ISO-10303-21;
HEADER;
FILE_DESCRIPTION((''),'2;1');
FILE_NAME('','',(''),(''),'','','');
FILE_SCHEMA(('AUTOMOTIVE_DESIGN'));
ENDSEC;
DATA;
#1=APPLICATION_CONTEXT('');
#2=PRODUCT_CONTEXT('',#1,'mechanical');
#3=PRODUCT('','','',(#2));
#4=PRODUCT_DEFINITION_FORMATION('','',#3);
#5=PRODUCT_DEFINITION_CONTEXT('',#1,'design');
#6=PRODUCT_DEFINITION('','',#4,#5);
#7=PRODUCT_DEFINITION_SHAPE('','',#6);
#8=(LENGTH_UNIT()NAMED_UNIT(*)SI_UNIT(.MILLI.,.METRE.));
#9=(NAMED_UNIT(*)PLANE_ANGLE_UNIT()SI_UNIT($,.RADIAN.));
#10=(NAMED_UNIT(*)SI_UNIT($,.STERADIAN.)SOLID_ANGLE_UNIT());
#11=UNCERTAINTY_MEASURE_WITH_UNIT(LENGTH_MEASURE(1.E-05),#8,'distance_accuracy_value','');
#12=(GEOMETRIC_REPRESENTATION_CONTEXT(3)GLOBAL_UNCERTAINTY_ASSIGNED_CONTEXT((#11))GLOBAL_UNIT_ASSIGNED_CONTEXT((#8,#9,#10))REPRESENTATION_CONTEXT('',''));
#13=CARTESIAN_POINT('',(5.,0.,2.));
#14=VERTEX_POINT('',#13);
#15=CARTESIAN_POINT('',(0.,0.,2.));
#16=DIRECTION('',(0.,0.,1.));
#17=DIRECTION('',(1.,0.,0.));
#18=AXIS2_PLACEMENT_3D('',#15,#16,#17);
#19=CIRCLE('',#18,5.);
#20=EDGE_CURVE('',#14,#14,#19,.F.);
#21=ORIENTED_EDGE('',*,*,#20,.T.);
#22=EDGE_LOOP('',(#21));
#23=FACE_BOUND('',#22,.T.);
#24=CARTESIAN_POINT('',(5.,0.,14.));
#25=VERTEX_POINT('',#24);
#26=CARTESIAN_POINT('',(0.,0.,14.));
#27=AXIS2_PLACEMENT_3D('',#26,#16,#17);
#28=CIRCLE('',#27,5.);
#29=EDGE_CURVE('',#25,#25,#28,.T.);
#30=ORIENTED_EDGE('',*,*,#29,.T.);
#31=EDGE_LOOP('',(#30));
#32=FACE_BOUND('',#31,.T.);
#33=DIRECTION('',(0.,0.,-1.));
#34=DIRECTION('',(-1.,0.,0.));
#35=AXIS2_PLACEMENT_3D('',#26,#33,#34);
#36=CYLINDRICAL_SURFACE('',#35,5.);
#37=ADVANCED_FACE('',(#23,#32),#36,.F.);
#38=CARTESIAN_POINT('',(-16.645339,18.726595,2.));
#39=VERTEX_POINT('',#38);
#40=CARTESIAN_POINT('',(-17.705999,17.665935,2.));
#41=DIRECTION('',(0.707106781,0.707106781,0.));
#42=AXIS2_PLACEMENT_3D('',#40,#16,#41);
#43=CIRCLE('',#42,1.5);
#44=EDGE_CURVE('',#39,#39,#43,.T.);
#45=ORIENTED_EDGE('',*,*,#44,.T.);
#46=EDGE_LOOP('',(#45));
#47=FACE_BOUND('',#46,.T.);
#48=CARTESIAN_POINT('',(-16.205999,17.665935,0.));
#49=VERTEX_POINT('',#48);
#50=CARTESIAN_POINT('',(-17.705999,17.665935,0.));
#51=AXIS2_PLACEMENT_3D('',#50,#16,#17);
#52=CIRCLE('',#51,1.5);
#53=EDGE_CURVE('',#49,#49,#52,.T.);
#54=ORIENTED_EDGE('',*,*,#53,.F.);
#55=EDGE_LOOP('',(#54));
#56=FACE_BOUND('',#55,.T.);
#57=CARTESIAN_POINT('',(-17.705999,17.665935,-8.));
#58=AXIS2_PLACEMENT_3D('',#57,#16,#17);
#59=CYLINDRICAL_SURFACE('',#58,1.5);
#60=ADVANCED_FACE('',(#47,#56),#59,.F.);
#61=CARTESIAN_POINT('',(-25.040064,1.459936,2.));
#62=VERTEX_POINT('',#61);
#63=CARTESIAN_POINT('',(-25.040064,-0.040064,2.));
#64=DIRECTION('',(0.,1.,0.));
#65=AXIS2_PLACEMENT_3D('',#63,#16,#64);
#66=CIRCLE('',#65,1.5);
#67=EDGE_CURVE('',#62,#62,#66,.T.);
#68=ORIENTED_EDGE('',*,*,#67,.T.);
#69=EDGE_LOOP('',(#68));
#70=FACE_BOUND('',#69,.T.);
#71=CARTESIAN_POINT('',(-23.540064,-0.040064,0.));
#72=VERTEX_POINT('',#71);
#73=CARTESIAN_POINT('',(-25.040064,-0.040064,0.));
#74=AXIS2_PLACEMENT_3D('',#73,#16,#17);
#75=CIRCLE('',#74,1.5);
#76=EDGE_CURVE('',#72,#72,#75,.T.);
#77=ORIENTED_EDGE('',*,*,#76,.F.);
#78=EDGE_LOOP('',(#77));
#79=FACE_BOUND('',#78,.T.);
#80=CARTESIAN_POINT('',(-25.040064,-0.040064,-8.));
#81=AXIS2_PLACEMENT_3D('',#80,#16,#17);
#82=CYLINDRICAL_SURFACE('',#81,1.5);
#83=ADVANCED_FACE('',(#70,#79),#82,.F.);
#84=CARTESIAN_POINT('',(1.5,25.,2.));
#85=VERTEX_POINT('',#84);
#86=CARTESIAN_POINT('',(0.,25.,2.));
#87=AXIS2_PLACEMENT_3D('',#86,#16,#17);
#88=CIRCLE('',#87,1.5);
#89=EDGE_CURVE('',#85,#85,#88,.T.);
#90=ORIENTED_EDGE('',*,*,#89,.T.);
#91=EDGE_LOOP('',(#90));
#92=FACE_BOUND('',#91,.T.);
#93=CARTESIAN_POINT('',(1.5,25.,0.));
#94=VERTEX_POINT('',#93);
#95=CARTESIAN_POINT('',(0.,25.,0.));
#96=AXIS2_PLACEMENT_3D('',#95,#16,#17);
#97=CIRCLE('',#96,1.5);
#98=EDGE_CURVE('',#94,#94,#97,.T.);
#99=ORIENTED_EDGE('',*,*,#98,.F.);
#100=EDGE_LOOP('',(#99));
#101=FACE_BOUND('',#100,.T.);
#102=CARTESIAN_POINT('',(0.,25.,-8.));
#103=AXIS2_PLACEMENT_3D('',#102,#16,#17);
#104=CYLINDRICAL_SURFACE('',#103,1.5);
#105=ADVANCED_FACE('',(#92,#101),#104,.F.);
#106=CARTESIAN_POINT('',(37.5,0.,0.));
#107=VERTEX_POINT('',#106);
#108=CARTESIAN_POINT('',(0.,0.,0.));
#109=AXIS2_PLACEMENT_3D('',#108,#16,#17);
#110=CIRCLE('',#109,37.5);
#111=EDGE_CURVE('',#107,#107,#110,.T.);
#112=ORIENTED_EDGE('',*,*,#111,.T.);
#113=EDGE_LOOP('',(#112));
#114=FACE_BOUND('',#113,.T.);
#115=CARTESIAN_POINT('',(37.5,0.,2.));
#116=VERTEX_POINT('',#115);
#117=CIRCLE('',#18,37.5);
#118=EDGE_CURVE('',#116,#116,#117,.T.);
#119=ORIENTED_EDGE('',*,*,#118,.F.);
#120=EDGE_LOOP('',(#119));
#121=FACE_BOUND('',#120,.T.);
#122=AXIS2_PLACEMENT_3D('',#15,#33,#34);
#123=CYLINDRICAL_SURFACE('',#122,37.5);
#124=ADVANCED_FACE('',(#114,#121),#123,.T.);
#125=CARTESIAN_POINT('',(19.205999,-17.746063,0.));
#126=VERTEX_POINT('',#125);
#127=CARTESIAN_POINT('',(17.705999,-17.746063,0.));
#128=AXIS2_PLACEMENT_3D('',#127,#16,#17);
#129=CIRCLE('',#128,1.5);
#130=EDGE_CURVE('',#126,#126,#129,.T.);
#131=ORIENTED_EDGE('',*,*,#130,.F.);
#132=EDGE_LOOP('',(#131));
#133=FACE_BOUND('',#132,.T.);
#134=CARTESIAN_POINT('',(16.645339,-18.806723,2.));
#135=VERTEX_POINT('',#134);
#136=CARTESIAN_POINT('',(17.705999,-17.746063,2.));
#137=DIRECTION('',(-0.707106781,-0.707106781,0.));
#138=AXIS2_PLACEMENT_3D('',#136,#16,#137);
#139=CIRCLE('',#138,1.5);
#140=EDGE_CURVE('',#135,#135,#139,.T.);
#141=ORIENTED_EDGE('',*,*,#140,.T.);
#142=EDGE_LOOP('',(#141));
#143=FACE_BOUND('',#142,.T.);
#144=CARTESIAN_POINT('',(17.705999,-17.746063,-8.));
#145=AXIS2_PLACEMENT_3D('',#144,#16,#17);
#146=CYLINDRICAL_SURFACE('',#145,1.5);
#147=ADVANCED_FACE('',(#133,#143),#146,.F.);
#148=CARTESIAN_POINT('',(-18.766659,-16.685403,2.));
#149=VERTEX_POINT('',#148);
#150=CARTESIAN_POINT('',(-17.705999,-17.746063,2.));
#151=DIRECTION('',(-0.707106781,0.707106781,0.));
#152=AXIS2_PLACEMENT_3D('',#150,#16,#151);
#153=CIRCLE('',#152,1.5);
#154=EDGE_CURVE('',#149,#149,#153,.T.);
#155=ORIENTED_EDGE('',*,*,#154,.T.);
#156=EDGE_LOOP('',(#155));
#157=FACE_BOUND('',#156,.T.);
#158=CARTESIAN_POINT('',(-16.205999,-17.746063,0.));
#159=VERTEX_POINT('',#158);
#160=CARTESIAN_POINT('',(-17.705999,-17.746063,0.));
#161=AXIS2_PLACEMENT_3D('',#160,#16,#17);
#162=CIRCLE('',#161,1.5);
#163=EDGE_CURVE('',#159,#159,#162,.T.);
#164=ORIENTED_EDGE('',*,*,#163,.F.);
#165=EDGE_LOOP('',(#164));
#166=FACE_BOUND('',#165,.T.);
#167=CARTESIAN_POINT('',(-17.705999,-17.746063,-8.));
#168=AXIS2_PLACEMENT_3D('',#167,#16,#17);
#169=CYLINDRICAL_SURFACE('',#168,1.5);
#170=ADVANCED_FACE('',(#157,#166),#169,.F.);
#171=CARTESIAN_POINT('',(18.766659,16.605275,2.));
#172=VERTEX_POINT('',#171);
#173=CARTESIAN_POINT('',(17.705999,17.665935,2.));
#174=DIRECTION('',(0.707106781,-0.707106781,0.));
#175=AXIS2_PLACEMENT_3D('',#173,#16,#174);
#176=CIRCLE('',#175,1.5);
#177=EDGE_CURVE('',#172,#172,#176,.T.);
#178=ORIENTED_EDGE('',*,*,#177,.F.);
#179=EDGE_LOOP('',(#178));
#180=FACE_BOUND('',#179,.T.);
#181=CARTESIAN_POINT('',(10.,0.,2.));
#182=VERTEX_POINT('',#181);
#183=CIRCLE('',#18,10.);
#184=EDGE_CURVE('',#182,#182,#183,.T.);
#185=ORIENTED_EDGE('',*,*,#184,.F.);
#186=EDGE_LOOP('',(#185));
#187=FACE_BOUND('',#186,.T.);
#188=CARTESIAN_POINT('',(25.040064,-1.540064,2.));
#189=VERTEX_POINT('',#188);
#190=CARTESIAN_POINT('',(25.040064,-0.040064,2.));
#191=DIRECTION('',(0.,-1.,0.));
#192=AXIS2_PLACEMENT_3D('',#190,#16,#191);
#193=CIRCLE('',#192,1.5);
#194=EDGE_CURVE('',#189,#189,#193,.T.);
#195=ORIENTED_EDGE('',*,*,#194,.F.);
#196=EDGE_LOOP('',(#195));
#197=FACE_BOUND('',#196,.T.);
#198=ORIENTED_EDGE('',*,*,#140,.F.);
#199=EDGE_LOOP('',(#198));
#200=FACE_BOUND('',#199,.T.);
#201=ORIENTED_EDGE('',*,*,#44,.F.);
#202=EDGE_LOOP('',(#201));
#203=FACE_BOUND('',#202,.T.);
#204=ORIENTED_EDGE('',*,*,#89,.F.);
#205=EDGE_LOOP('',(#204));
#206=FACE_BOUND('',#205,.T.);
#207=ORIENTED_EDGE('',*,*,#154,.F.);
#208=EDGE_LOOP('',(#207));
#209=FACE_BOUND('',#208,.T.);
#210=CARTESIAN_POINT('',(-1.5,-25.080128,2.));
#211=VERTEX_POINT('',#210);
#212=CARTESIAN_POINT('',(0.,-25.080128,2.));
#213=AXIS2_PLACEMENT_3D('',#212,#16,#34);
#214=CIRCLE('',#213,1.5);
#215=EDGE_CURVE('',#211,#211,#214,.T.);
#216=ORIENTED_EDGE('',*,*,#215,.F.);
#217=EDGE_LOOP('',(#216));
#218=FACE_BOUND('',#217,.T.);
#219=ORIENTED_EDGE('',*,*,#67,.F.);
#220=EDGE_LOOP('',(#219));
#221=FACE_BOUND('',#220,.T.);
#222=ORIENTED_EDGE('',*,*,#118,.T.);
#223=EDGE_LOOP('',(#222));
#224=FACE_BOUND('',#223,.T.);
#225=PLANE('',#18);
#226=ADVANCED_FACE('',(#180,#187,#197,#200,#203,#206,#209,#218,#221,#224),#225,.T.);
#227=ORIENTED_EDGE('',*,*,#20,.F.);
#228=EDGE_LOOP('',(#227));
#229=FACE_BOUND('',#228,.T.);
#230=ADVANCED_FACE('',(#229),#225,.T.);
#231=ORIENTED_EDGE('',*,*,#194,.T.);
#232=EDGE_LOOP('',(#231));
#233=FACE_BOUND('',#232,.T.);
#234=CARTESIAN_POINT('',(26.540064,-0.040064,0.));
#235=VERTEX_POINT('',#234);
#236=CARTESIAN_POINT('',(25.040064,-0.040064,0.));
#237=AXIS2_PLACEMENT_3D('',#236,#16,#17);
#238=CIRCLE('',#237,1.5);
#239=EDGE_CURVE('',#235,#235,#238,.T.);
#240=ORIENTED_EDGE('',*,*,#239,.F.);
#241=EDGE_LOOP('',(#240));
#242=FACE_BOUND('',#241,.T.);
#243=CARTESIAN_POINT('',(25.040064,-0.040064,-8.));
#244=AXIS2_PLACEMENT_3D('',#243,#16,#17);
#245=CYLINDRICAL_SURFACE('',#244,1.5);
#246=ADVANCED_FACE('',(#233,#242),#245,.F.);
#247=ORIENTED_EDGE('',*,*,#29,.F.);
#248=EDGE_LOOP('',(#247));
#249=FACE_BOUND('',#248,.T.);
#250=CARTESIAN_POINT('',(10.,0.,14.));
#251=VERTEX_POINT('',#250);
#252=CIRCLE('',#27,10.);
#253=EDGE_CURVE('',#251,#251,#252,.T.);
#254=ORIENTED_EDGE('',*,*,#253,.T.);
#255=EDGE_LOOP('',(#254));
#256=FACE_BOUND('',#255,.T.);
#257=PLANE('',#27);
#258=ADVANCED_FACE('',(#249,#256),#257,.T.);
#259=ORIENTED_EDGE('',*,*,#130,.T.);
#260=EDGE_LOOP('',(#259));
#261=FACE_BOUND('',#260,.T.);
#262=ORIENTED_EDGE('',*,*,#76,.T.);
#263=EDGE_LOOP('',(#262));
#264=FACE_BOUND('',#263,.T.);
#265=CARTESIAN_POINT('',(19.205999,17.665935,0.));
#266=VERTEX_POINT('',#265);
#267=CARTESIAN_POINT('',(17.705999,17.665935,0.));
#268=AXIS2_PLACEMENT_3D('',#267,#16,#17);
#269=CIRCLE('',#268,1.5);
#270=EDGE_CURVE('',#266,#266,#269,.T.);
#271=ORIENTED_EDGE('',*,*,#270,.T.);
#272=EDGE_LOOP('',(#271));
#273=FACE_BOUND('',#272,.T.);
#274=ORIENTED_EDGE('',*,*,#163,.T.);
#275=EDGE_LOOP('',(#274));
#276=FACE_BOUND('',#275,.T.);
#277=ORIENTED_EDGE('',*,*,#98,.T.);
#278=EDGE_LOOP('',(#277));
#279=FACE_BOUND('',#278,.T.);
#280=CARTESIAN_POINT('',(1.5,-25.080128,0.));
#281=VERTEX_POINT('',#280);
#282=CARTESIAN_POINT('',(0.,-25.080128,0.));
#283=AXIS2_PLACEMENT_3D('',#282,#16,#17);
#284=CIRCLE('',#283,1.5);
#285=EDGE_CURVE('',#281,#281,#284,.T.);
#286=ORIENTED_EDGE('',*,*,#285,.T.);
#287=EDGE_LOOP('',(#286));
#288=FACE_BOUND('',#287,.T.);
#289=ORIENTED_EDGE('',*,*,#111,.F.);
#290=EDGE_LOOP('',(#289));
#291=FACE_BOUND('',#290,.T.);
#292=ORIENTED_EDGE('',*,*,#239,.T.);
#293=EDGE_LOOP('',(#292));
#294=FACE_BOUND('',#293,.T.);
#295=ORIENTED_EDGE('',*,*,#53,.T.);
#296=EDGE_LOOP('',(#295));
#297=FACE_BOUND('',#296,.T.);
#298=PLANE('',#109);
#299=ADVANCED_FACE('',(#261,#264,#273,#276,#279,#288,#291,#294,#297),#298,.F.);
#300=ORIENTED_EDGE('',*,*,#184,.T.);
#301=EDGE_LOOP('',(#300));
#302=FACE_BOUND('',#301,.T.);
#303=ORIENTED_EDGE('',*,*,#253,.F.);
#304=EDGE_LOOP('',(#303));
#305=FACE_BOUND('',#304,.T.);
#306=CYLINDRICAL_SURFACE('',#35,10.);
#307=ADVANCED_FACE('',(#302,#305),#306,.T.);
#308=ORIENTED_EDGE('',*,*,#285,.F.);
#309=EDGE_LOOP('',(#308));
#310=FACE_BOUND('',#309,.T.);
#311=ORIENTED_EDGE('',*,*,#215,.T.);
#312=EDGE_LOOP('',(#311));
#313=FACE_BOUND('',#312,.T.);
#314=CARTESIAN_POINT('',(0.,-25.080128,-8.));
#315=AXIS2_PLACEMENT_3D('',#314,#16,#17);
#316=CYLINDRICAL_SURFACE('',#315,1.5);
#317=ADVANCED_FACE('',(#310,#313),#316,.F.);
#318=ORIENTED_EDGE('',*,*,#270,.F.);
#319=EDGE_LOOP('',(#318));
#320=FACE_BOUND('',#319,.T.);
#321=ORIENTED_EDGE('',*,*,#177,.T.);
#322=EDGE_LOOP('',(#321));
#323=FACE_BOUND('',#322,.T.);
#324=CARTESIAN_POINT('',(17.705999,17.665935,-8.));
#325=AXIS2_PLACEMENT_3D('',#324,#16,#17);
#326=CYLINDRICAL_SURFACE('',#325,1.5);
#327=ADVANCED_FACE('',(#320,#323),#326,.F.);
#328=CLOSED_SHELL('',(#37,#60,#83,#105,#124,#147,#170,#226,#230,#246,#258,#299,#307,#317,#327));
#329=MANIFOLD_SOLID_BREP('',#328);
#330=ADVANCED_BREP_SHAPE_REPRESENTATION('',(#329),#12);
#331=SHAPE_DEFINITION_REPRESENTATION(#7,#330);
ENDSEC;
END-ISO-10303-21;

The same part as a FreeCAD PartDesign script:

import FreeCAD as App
import Part
import Sketcher
from FreeCAD import Vector

doc = App.newDocument("Part")
body = doc.addObject("PartDesign::Body", "Body")

# Sketch on XY plane
sketch1 = body.newObject("Sketcher::SketchObject", "Sketch")
sketch1.AttachmentSupport = (doc.getObject("XY_Plane"), [""])
sketch1.MapMode = "FlatFace"
sketch1.addGeometry(Part.Circle(Vector(0, 0, 0), Vector(0, 0, 1), 38), False)
sketch1.addConstraint([
    Sketcher.Constraint("Coincident", 0, 3, -1, 1),
    Sketcher.Constraint("Diameter", 0, 75.0),
])
pad1 = body.newObject("PartDesign::Pad", "Pad")
pad1.Profile = sketch1
pad1.Length = 2

# Sketch on XY plane
sketch2 = body.newObject("Sketcher::SketchObject", "Sketch001")
sketch2.AttachmentSupport = (doc.getObject("XY_Plane"), [""])
sketch2.MapMode = "FlatFace"
sketch2.AttachmentOffset = App.Placement(Vector(0, 0, 2), App.Rotation())
sketch2.addGeometry(Part.Circle(Vector(0, 25, 0), Vector(0, 0, 1), 1.5), False)
sketch2.addConstraint([
    Sketcher.Constraint("PointOnObject", 0, 3, -2),
    Sketcher.Constraint("Diameter", 0, 3.0),
    Sketcher.Constraint("DistanceY", -1, 1, 0, 3, 25.0),
])
pocket1 = body.newObject("PartDesign::Pocket", "Pocket")
pocket1.Profile = sketch2
pocket1.Length = 10
doc.recompute()

datumline = body.newObject("PartDesign::Line", "DatumLine")
datumline.Placement = App.Placement(Vector(0, -0.040064, 0), App.Rotation(Vector(0, 0, 1), Vector(0, 0, 1)))
polarpattern = body.newObject("PartDesign::PolarPattern", "PolarPattern")
polarpattern.Originals = [pocket1]
polarpattern.Axis = (datumline, [""])
polarpattern.Angle = 360
polarpattern.Occurrences = 8
body.Tip = polarpattern

# Sketch on XY plane
sketch3 = body.newObject("Sketcher::SketchObject", "Sketch002")
sketch3.AttachmentSupport = (doc.getObject("XY_Plane"), [""])
sketch3.MapMode = "FlatFace"
sketch3.AttachmentOffset = App.Placement(Vector(0, 0, 2), App.Rotation())
sketch3.addGeometry([
    Part.Circle(Vector(0, 0, 0), Vector(0, 0, 1), 10),
    Part.Circle(Vector(0, 0, 0), Vector(0, 0, 1), 5),
], False)
sketch3.addConstraint([
    Sketcher.Constraint("Coincident", 0, 3, -1, 1),
    Sketcher.Constraint("Coincident", 1, 3, -1, 1),
    Sketcher.Constraint("Diameter", 0, 20.0),
    Sketcher.Constraint("Diameter", 1, 10.0),
])
pad2 = body.newObject("PartDesign::Pad", "Pad001")
pad2.Profile = sketch3
pad2.Length = 12

doc.recompute()
